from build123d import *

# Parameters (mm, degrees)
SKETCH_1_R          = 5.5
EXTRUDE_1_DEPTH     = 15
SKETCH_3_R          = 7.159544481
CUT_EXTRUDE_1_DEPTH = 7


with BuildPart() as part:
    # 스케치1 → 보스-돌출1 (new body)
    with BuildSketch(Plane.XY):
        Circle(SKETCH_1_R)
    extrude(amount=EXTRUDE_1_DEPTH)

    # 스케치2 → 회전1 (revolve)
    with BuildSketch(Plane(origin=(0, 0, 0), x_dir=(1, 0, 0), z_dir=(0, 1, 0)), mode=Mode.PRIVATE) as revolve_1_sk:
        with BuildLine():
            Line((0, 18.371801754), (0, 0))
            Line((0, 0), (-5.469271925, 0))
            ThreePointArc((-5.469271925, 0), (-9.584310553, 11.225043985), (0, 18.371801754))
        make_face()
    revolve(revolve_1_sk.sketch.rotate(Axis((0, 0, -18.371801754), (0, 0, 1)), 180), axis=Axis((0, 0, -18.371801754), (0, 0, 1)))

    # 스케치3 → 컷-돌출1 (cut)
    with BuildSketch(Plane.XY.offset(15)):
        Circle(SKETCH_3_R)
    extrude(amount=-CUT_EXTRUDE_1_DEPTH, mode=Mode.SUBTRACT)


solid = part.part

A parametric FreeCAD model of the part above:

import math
import FreeCAD as App
import Part
import Sketcher

V = App.Vector

doc = App.newDocument("Part")
body = doc.addObject("PartDesign::Body", "Body")

sketch1 = body.newObject("Sketcher::SketchObject", "Sketch")
sketch1.AttachmentSupport = (doc.getObject("XY_Plane"), [""])
sketch1.MapMode = "FlatFace"
sketch1.addGeometry(Part.Circle(V(0, 0, 0), V(0, 0, 1), 6), False)
sketch1.addConstraint([
    Sketcher.Constraint("Coincident", 0, 3, -1, 1),
    Sketcher.Constraint("Diameter", 0, 11.0),
])
pad1 = body.newObject("PartDesign::Pad", "Pad")
pad1.Profile = sketch1
pad1.Length = 15

sketch2 = body.newObject("Sketcher::SketchObject", "Sketch001")
sketch2.AttachmentSupport = (doc.getObject("XZ_Plane"), [""])
sketch2.MapMode = "FlatFace"
sketch2.addGeometry([
    Part.LineSegment(V(0, 0, 0), V(0, -18, 0)),
    Part.ArcOfCircle(Part.Circle(V(0, -8, 0), V(0, 0, 1), 10), math.radians(123), math.radians(270)),
    Part.LineSegment(V(-5, 0, 0), V(0, 0, 0)),
], False)
sketch2.addConstraint([
    Sketcher.Constraint("Coincident", 0, 2, 1, 2),
    Sketcher.Constraint("Coincident", 1, 1, 2, 1),
    Sketcher.Constraint("Coincident", 2, 2, 0, 1),
    Sketcher.Constraint("Vertical", 0),
    Sketcher.Constraint("Horizontal", 2),
    Sketcher.Constraint("Coincident", 2, 2, -1, 1),
    Sketcher.Constraint("PointOnObject", 1, 3, -2),
    Sketcher.Constraint("Radius", 1, 10.0),
    Sketcher.Constraint("DistanceY", 0, 2, 0, 1, 18.371802),
])
revolution = body.newObject("PartDesign::Revolution", "Revolution")
revolution.Profile = sketch2
revolution.ReferenceAxis = (sketch2, ["V_Axis"])
revolution.Angle = 360

sketch3 = body.newObject("Sketcher::SketchObject", "Sketch002")
sketch3.AttachmentSupport = (doc.getObject("XY_Plane"), [""])
sketch3.MapMode = "FlatFace"
sketch3.AttachmentOffset = App.Placement(V(0, 0, 15), App.Rotation())
sketch3.addGeometry(Part.Circle(V(0, 0, 0), V(0, 0, 1), 7), False)
sketch3.addConstraint([
    Sketcher.Constraint("Coincident", 0, 3, -1, 1),
    Sketcher.Constraint("Diameter", 0, 14.319089),
])
pocket1 = body.newObject("PartDesign::Pocket", "Pocket")
pocket1.Profile = sketch3
pocket1.Length = 7

doc.recompute()
